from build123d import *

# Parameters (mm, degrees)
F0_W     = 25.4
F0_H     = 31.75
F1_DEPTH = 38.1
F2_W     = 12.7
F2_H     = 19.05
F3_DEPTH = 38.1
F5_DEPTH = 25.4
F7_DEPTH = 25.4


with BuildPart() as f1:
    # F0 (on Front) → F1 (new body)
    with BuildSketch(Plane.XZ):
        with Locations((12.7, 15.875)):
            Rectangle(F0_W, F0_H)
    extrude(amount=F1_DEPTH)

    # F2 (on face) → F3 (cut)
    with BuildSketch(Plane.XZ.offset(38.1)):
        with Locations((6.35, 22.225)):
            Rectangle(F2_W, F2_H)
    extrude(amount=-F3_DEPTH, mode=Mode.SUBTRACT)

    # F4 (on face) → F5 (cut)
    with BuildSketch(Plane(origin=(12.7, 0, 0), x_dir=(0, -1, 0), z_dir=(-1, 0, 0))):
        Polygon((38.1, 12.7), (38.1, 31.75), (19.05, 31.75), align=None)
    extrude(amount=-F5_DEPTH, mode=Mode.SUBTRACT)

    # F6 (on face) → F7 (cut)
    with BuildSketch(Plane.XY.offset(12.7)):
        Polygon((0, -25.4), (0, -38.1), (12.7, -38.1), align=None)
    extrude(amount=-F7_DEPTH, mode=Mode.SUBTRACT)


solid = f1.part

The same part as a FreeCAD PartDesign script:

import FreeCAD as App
import Part
import Sketcher

V = App.Vector
Q = App.Units.Quantity


def add_polygon(sketch, points):
    """Adds a closed chain of lines whose ends are joined by coincident constraints."""
    first, n = sketch.GeometryCount, len(points)
    for a, b in zip(points, points[1:] + points[:1]):
        sketch.addGeometry(Part.LineSegment(App.Vector(*a, 0), App.Vector(*b, 0)), False)
    for i in range(n):
        sketch.addConstraint(Sketcher.Constraint("Coincident", first + i, 2, first + (i + 1) % n, 1))

doc = App.newDocument("Part")
body = doc.addObject("PartDesign::Body", "Body")

sketch1 = doc.addObject("Sketcher::SketchObject", "Sketch")
body.addObject(sketch1)
sketch1.AttachmentSupport = (doc.XZ_Plane, [""])
sketch1.MapMode = "FlatFace"
add_polygon(sketch1, [(0, 32), (0, 0), (25, 0), (25, 32)])
sketch1.addConstraint([
    Sketcher.Constraint("Vertical", 0),
    Sketcher.Constraint("Horizontal", 1),
    Sketcher.Constraint("Vertical", 2),
    Sketcher.Constraint("Horizontal", 3),
    Sketcher.Constraint("Coincident", 0, 2, -1, 1),
    Sketcher.Constraint("DistanceX", 1, 1, 1, 2, Q("1 in")),
    Sketcher.Constraint("DistanceY", 0, 2, 0, 1, Q("1.25 in")),
])
pad1 = doc.addObject("PartDesign::Pad", "Pad")
body.addObject(pad1)
pad1.Profile = sketch1
pad1.Length = Q("1.5 in")

sketch2 = doc.addObject("Sketcher::SketchObject", "Sketch001")
body.addObject(sketch2)
sketch2.AttachmentSupport = (doc.XZ_Plane, [""])
sketch2.MapMode = "FlatFace"
sketch2.AttachmentOffset = App.Placement(V(0, 0, 1.5 * 25.4), App.Rotation())
add_polygon(sketch2, [(0, 32), (0, 13), (13, 13), (13, 32)])
sketch2.addConstraint([
    Sketcher.Constraint("Vertical", 0),
    Sketcher.Constraint("Horizontal", 1),
    Sketcher.Constraint("Vertical", 2),
    Sketcher.Constraint("Horizontal", 3),
    Sketcher.Constraint("PointOnObject", 0, 2, -2),
    Sketcher.Constraint("DistanceX", 1, 1, 1, 2, Q("0.5 in")),
    Sketcher.Constraint("DistanceY", 0, 2, 0, 1, Q("0.75 in")),
    Sketcher.Constraint("DistanceY", -1, 1, 0, 2, Q("0.5 in")),
])
pocket1 = doc.addObject("PartDesign::Pocket", "Pocket")
body.addObject(pocket1)
pocket1.Profile = sketch2
pocket1.Length = Q("1.5 in")

sketch3 = doc.addObject("Sketcher::SketchObject", "Sketch002")
body.addObject(sketch3)
sketch3.AttachmentSupport = (doc.YZ_Plane, [""])
sketch3.MapMode = "FlatFace"
sketch3.AttachmentOffset = App.Placement(V(0, 0, 0.5 * 25.4), App.Rotation())
add_polygon(sketch3, [(-38, 13), (-38, 32), (-19, 32)])
sketch3.addConstraint([
    Sketcher.Constraint("Vertical", 0),
    Sketcher.Constraint("Horizontal", 1),
    Sketcher.Constraint("Equal", 1, 0),
    Sketcher.Constraint("DistanceX", 1, 1, 1, 2, Q("0.75 in")),
    Sketcher.Constraint("DistanceX", 0, 2, -1, 1, Q("1.5 in")),
    Sketcher.Constraint("DistanceY", -1, 1, 2, 2, Q("0.5 in")),
])
pocket2 = doc.addObject("PartDesign::Pocket", "Pocket001")
body.addObject(pocket2)
pocket2.Profile = sketch3
pocket2.Length = Q("1 in")
pocket2.Reversed = True

sketch4 = doc.addObject("Sketcher::SketchObject", "Sketch003")
body.addObject(sketch4)
sketch4.AttachmentSupport = (doc.XY_Plane, [""])
sketch4.MapMode = "FlatFace"
sketch4.AttachmentOffset = App.Placement(V(0, 0, 0.5 * 25.4), App.Rotation())
add_polygon(sketch4, [(0, -25), (0, -38), (13, -38)])
sketch4.addConstraint([
    Sketcher.Constraint("Vertical", 0),
    Sketcher.Constraint("Horizontal", 1),
    Sketcher.Constraint("PointOnObject", 0, 2, -2),
    Sketcher.Constraint("Equal", 1, 0),
    Sketcher.Constraint("DistanceX", 1, 1, 1, 2, Q("0.5 in")),
    Sketcher.Constraint("DistanceY", 2, 2, -1, 1, Q("1 in")),
])
pocket3 = doc.addObject("PartDesign::Pocket", "Pocket002")
body.addObject(pocket3)
pocket3.Profile = sketch4
pocket3.Length = Q("1 in")

doc.recompute()
